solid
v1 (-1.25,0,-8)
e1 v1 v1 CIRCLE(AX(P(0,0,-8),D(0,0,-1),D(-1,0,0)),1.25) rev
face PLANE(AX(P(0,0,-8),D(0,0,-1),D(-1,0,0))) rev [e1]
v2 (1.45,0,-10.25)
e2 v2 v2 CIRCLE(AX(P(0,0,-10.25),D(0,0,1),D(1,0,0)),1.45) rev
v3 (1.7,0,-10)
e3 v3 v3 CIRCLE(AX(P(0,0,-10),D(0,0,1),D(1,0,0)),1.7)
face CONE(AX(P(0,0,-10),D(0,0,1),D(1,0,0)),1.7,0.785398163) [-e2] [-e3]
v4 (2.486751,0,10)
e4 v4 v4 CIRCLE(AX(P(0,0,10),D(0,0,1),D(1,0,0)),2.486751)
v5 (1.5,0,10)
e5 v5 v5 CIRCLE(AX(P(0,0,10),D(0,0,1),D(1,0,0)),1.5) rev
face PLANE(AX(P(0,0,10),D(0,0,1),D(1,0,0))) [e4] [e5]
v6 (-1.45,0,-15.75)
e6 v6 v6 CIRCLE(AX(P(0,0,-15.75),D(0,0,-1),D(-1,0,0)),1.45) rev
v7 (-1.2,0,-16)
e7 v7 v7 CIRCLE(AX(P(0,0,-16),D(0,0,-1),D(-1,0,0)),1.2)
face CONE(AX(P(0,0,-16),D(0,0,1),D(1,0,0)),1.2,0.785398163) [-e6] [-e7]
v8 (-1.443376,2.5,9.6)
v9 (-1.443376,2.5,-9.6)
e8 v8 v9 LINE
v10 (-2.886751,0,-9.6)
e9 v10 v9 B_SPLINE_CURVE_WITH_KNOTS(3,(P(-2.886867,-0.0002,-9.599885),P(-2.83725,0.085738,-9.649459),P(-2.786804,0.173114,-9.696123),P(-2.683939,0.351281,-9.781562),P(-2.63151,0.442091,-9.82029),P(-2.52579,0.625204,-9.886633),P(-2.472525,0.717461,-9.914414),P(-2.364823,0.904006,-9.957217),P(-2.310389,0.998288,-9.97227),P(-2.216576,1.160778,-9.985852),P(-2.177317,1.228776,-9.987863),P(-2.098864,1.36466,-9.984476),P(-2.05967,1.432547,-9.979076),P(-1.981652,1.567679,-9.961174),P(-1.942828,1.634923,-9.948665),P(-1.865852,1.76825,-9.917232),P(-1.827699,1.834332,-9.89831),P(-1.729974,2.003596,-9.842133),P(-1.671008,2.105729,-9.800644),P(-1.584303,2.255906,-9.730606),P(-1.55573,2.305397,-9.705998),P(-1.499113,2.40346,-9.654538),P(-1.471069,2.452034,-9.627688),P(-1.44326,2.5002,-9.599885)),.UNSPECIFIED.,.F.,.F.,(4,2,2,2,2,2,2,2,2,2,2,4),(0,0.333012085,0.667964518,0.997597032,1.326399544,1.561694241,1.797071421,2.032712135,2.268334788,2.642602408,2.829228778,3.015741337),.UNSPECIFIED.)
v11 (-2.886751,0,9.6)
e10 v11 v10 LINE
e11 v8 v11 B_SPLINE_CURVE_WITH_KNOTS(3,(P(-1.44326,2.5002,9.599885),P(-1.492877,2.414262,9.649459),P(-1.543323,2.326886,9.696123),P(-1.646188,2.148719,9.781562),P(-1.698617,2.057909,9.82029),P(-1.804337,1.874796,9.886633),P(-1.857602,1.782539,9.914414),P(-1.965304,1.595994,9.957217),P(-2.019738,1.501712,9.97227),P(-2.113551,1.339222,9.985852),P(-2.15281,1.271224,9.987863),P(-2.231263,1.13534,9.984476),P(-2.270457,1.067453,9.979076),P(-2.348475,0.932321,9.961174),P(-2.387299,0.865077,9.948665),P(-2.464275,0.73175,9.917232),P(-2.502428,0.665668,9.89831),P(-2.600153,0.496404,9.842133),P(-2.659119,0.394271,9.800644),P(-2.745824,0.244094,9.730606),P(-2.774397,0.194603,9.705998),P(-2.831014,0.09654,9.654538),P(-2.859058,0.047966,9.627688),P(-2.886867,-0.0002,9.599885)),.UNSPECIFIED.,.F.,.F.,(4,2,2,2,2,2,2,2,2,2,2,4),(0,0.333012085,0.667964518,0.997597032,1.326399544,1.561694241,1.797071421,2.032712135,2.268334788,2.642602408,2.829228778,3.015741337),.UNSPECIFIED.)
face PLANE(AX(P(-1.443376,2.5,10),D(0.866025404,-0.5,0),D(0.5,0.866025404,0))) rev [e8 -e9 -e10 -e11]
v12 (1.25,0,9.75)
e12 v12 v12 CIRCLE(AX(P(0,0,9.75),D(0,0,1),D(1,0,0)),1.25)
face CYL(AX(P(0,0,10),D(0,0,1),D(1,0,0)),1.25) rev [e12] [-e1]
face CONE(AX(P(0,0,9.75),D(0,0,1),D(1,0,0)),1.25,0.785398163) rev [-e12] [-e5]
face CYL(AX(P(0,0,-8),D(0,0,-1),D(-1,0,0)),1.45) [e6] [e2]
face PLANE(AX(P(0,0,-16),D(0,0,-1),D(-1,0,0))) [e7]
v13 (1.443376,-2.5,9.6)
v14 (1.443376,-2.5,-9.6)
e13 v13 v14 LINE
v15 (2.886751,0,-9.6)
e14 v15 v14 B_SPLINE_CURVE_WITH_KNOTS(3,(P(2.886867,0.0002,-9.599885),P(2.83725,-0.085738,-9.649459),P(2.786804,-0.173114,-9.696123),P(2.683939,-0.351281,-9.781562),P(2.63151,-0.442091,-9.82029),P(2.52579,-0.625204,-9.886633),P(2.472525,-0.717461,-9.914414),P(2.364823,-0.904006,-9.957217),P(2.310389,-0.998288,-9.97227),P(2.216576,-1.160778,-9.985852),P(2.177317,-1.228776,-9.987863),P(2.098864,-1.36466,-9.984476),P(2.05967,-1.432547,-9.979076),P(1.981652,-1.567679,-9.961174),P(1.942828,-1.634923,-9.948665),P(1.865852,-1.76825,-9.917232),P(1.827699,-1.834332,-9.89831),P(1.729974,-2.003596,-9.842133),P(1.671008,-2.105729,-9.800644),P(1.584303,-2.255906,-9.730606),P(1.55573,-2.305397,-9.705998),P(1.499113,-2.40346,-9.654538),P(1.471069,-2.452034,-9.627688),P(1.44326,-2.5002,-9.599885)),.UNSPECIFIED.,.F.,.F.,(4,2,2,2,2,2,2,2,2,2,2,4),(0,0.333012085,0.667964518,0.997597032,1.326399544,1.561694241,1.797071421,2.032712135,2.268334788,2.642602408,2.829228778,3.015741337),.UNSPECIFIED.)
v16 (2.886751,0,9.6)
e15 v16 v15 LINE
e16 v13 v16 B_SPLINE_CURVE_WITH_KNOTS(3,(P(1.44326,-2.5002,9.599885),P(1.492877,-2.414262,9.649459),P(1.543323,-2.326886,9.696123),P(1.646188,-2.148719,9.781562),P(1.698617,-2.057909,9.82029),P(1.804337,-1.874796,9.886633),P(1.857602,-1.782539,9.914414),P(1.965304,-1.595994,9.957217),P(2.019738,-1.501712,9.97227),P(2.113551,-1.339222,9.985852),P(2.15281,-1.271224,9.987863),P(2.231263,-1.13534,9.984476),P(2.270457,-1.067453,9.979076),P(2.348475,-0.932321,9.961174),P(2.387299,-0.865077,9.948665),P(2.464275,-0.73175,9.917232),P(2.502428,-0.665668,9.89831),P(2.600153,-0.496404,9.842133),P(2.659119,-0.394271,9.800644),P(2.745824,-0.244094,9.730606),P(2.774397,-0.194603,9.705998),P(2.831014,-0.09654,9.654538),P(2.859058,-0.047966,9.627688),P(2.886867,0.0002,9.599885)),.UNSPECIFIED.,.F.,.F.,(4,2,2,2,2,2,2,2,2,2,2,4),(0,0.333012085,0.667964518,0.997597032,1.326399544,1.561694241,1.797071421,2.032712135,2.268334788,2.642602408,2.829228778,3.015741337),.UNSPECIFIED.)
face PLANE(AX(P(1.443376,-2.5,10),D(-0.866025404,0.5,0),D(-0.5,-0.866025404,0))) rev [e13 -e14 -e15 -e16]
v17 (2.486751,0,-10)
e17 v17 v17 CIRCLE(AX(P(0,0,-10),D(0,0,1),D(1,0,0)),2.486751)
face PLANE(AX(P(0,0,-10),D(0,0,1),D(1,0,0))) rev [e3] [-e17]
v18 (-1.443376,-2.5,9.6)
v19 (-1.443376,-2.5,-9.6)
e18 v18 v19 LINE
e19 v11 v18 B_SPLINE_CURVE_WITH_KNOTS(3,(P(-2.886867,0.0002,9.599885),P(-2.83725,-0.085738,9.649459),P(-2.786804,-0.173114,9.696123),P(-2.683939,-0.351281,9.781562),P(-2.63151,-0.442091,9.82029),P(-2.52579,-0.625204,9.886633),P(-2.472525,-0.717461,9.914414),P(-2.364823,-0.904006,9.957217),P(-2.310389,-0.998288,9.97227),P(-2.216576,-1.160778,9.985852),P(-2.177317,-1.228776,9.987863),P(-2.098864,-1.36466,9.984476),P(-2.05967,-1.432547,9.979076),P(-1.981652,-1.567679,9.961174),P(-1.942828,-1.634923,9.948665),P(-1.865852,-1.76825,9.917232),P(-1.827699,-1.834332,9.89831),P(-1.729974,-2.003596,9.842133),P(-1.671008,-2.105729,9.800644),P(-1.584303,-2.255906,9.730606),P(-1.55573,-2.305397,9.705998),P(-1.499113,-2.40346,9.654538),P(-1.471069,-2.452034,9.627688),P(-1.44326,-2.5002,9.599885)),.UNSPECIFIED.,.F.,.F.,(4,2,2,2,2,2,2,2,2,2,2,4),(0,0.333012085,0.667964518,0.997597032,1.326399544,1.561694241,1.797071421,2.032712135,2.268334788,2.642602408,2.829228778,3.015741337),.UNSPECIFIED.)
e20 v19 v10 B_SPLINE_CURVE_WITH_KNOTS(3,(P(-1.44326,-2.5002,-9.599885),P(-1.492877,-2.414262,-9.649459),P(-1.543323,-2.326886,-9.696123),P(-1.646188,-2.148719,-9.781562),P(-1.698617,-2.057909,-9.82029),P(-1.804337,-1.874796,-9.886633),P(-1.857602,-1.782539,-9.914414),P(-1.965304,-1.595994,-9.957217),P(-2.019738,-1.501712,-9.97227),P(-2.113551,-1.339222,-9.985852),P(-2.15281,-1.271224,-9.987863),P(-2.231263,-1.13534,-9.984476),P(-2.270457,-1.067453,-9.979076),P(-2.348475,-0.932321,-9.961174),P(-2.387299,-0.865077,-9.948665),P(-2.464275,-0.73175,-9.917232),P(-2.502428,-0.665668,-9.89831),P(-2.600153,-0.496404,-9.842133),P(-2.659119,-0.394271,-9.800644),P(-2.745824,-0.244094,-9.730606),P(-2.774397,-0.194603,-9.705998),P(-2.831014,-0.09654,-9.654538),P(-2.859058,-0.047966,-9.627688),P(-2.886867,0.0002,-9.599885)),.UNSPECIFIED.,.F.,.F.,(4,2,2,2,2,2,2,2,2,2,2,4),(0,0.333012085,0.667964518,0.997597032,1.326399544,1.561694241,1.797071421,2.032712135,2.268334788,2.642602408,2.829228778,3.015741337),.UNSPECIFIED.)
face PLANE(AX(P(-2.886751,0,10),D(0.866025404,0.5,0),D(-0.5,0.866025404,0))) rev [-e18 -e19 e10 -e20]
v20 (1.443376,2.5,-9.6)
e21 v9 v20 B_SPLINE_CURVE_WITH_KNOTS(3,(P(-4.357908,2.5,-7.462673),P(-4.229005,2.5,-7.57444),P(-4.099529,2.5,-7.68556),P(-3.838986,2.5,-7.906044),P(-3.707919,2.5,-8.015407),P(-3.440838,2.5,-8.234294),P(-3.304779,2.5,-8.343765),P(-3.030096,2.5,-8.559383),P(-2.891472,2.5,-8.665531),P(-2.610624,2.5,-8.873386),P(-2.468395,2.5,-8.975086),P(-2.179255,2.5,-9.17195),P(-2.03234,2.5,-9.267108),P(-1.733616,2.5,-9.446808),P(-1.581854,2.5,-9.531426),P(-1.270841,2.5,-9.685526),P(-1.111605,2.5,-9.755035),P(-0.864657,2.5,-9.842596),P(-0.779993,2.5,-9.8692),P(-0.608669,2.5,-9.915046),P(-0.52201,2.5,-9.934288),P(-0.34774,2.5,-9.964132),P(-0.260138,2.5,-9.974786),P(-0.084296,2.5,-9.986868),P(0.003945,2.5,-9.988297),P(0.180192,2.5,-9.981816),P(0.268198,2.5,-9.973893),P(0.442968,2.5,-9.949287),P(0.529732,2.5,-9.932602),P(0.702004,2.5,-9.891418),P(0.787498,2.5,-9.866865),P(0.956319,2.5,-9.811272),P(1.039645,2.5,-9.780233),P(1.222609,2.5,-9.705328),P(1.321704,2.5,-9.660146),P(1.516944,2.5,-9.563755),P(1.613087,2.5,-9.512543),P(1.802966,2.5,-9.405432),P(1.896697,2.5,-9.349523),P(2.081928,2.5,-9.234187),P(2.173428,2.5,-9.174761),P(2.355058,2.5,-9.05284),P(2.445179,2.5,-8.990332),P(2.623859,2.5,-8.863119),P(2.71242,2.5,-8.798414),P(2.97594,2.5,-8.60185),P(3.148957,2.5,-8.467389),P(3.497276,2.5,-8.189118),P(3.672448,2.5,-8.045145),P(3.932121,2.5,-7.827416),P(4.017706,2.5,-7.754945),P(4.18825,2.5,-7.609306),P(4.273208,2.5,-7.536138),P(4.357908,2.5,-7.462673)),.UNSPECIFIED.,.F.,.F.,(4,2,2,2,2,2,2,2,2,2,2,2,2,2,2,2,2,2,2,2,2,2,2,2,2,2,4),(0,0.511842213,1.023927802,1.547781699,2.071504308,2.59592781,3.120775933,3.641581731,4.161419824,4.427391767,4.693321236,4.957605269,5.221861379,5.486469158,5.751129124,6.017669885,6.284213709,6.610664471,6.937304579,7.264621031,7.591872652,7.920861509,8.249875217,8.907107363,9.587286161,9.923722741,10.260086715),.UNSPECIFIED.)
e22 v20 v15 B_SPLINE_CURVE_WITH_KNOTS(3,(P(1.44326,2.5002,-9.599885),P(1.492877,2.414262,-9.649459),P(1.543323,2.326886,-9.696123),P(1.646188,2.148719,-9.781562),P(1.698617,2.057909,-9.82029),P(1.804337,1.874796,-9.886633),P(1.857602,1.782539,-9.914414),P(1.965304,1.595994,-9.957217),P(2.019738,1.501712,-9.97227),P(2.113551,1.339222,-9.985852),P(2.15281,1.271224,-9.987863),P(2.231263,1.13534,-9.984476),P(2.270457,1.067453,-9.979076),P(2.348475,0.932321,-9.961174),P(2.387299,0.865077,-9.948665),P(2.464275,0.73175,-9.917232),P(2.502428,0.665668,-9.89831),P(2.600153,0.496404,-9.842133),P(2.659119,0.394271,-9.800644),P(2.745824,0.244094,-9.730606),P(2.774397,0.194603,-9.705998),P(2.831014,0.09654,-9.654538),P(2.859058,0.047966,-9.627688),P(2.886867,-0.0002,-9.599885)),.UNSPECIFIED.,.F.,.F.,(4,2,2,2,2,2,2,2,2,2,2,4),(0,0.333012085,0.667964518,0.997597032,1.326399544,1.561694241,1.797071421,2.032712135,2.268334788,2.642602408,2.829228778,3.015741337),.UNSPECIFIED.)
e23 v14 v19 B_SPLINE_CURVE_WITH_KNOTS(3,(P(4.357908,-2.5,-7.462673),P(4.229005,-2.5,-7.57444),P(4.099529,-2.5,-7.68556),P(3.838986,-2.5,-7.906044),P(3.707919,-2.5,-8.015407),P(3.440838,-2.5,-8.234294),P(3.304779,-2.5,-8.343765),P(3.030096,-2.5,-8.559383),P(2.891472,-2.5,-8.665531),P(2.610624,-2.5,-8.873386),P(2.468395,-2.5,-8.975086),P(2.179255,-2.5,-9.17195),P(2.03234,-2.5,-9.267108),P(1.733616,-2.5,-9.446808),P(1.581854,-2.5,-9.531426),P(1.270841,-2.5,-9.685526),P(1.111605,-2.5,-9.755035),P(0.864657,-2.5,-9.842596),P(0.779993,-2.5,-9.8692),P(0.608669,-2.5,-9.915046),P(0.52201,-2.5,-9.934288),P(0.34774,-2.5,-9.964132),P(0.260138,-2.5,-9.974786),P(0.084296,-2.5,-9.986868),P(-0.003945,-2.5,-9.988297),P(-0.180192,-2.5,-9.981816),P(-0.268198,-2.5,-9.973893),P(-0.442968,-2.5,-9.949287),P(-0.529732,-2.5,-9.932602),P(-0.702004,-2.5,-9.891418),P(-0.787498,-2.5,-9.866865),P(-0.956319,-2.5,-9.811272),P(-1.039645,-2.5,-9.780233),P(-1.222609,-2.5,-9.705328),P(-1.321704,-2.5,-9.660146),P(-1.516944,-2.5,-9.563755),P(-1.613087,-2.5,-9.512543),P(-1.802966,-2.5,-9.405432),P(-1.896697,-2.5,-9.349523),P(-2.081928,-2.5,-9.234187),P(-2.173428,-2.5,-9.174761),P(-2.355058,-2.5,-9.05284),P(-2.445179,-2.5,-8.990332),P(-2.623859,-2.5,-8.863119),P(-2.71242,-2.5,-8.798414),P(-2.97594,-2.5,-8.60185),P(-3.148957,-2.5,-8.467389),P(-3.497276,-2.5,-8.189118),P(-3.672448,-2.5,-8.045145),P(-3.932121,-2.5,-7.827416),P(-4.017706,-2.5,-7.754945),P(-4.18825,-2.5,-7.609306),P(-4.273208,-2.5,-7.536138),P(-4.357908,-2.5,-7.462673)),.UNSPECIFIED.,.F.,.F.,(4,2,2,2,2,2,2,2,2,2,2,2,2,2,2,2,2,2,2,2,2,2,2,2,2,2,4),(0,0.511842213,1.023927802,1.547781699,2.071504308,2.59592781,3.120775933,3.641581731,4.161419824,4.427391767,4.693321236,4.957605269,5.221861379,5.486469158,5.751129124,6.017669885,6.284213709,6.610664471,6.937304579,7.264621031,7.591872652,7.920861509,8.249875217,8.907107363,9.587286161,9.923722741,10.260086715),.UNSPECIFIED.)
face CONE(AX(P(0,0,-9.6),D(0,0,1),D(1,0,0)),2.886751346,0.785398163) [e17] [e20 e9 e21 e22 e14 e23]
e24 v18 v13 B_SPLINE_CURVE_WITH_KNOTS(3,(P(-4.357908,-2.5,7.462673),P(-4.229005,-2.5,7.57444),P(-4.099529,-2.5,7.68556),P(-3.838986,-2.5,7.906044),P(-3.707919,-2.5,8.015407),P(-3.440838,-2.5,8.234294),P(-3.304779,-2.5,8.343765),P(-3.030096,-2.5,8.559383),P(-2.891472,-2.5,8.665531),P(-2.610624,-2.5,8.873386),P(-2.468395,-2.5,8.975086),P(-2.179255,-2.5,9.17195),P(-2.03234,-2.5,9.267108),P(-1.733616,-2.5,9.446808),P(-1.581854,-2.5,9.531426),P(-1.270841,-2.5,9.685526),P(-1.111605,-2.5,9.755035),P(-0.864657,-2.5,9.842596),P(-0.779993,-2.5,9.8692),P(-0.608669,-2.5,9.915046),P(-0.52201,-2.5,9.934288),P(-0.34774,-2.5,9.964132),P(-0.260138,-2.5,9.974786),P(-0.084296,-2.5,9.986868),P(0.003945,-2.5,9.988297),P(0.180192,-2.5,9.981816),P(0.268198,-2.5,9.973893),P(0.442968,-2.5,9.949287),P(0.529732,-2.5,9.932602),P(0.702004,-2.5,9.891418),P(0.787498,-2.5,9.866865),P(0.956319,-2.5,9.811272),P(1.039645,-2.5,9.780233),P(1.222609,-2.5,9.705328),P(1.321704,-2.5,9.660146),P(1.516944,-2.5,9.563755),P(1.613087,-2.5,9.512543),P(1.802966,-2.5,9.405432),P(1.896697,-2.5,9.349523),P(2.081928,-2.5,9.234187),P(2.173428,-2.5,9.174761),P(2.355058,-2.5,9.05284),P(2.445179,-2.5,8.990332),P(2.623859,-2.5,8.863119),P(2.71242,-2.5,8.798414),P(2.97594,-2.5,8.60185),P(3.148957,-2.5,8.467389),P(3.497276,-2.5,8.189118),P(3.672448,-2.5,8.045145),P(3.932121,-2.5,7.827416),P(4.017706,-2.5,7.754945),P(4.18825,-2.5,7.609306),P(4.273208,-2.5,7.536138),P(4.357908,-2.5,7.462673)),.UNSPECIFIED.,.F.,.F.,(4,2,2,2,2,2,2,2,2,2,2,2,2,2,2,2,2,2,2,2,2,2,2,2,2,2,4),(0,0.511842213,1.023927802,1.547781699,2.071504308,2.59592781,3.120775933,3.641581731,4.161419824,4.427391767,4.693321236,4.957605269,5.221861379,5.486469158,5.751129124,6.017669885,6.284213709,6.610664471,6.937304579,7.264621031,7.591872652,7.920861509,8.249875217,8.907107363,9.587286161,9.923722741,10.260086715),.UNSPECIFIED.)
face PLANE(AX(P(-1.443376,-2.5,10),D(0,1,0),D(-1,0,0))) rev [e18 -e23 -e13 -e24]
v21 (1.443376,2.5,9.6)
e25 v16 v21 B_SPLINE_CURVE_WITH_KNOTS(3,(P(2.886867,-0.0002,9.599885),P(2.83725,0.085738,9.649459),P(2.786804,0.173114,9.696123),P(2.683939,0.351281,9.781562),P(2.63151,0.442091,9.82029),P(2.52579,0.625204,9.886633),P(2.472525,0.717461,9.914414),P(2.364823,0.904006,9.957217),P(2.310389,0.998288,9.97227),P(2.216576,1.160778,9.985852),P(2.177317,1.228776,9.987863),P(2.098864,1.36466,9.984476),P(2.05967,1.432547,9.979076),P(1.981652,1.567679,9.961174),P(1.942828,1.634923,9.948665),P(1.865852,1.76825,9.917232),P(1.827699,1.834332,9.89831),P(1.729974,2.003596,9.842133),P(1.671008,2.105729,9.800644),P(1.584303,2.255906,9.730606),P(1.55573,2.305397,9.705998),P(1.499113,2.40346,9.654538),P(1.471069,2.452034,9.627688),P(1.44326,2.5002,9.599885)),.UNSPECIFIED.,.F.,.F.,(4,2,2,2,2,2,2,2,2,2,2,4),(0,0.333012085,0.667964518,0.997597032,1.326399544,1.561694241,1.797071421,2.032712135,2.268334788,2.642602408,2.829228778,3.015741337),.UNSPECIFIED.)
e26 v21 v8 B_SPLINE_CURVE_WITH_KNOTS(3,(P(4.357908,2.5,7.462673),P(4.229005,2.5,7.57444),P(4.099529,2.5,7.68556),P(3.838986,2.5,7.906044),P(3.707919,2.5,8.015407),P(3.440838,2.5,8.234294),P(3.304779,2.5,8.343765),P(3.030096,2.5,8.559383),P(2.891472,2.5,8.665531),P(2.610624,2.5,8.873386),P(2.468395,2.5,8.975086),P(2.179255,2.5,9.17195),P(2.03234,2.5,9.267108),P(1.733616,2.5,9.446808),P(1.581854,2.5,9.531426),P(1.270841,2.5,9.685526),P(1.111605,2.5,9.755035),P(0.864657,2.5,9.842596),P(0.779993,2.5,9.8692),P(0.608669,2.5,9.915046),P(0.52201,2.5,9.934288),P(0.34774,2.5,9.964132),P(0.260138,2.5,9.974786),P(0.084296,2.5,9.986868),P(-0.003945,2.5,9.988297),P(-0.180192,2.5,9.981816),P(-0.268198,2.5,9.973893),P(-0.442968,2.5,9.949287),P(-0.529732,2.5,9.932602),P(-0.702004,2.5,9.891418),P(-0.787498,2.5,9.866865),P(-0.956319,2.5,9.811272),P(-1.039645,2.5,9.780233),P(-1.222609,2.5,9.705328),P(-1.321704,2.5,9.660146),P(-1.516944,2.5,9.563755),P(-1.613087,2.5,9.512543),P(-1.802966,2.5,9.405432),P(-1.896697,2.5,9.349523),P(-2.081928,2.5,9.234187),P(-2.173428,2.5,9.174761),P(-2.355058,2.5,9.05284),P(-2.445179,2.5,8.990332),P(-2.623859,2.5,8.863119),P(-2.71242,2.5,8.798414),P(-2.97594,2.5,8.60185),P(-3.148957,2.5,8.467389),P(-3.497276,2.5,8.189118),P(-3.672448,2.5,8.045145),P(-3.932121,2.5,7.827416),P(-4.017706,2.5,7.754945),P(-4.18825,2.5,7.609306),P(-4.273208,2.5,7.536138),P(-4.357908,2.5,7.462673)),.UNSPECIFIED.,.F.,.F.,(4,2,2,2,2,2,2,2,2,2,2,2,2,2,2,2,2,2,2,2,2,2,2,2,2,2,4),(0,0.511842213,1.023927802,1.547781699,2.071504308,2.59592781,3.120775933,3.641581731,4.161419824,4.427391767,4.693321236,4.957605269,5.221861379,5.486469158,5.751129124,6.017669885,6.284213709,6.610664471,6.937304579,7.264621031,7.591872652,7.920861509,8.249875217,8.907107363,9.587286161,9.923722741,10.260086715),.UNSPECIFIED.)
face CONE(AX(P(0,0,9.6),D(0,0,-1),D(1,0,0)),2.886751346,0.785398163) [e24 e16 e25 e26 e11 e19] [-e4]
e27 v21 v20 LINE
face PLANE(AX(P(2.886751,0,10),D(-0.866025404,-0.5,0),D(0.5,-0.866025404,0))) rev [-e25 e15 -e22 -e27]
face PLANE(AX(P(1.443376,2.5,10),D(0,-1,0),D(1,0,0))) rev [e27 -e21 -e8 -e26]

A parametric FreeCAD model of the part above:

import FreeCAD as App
import Part
import Sketcher
from FreeCAD import Vector
Q = App.Units.Quantity


def edges_at(feature, points):
    """Names of the edges that pass closest to the given points."""
    edges = feature.Shape.Edges
    near = lambda p: min(range(len(edges)), key=lambda i: edges[i].distToShape(Part.Vertex(*p))[0])
    return sorted({f"Edge{near(p) + 1}" for p in points})


def add_polygon(sketch, points):
    """Adds a closed chain of lines whose ends are joined by coincident constraints."""
    first, n = sketch.GeometryCount, len(points)
    for a, b in zip(points, points[1:] + points[:1]):
        sketch.addGeometry(Part.LineSegment(App.Vector(*a, 0), App.Vector(*b, 0)), False)
    for i in range(n):
        sketch.addConstraint(Sketcher.Constraint("Coincident", first + i, 2, first + (i + 1) % n, 1))

doc = App.newDocument("Part")
params = doc.addObject("Spreadsheet::Sheet", "Params")
for row, (alias, value) in enumerate([
    ("pad1_length", "20 mm"),
    ("sketch2_diameter", "2.5 mm"),
    ("hole_diameter", "2.5 mm"),
    ("sketch3_width", "0.4 mm"),
    ("groove_angle", "360 deg"),
    ("sketch4_diameter", "2.9 mm"),
    ("pad2_length", "6 mm"),
    ("pad2_length2", "2 mm"),
    ("chamfer_size", "0.25 mm"),
], start=1):
    params.set(f"A{row}", alias)
    params.set(f"B{row}", "=" + value)
    params.setAlias(f"B{row}", alias)

body = doc.addObject("PartDesign::Body", "Body")

# Sketch on XY plane
sketch1 = body.newObject("Sketcher::SketchObject", "Sketch")
sketch1.AttachmentSupport = (doc.getObject("XY_Plane"), [""])
sketch1.MapMode = "FlatFace"
add_polygon(sketch1, [(2.9, 0), (1.4, 2.5), (-1.4, 2.5), (-2.9, 0), (-1.4, -2.5), (1.4, -2.5)])  # lines 0-5
sketch1.addConstraint(Sketcher.Constraint("Horizontal", 1))
sketch1.addConstraint(Sketcher.Constraint("Horizontal", 4))
sketch1.addConstraint(Sketcher.Constraint("Symmetric", 0, 2, 3, 2, -1, 1))
sketch1.addConstraint(Sketcher.Constraint("Symmetric", 2, 2, 5, 2, -1, 1))
sketch1.addConstraint(Sketcher.Constraint("PointOnObject", 2, 2, -1))
sketch1.addConstraint(Sketcher.Constraint("Parallel", 2, 5))
sketch1.addConstraint(Sketcher.Constraint("Vertical", 1, 2, 3, 2))
sketch1.addConstraint(Sketcher.Constraint("Angle", 0, Q("120 deg")))
sketch1.addConstraint(Sketcher.Constraint("DistanceY", 3, 2, 1, 2, 5.0))
sketch1.addConstraint(Sketcher.Constraint("DistanceX", 1, 2, 1, 1, 2.886751))
pad1 = body.newObject("PartDesign::Pad", "Pad")
pad1.Profile = sketch1
pad1.setExpression("Length", "Params.pad1_length")
pad1.Midplane = True

# Sketch on XY plane
sketch2 = body.newObject("Sketcher::SketchObject", "Sketch001")
sketch2.AttachmentSupport = (doc.getObject("XY_Plane"), [""])
sketch2.MapMode = "FlatFace"
sketch2.AttachmentOffset = App.Placement(Vector(0, 0, 10), App.Rotation())
sketch2.addGeometry(Part.Circle(Vector(0, 0, 0), Vector(0, 0, 1), 1.2), False)
sketch2.addConstraint(Sketcher.Constraint("Coincident", 0, 3, -1, 1))
sketch2.addConstraint(Sketcher.Constraint("Diameter", 0, 2.5))
sketch2.setExpression("Constraints[1]", "Params.sketch2_diameter")
doc.recompute()
hole = body.newObject("PartDesign::Hole", "Hole")
hole.Profile = sketch2
hole.ThreadType = "None"
hole.setExpression("Diameter", "Params.hole_diameter")
hole.DepthType = "ThroughAll"

# Sketch on XZ plane
sketch3 = body.newObject("Sketcher::SketchObject", "Sketch002")
sketch3.AttachmentSupport = (doc.getObject("XZ_Plane"), [""])
sketch3.MapMode = "FlatFace"
add_polygon(sketch3, [(-2.89, -10), (-2.89, -9.6), (-2.49, -10)])  # lines 0-2
sketch3.addConstraint(Sketcher.Constraint("Vertical", 0))
sketch3.addConstraint(Sketcher.Constraint("Horizontal", 2))
sketch3.addConstraint(Sketcher.Constraint("Equal", 2, 0))
sketch3.addConstraint(Sketcher.Constraint("DistanceX", 2, 2, 2, 1, 0.4))
sketch3.addConstraint(Sketcher.Constraint("DistanceY", 1, 2, -1, 1, 10.0))
sketch3.addConstraint(Sketcher.Constraint("DistanceX", 0, 2, -1, 1, 2.886751))
sketch3.setExpression("Constraints[6]", "Params.sketch3_width")
groove = body.newObject("PartDesign::Groove", "Groove")
groove.Profile = sketch3
groove.ReferenceAxis = (sketch3, ["V_Axis"])
groove.setExpression("Angle", "Params.groove_angle")
doc.recompute()

mirrored = body.newObject("PartDesign::Mirrored", "Mirrored")
mirrored.Originals = [groove]
mirrored.MirrorPlane = (doc.getObject("XY_Plane"), [""])
body.Tip = mirrored

# Sketch on XY plane
sketch4 = body.newObject("Sketcher::SketchObject", "Sketch003")
sketch4.AttachmentSupport = (doc.getObject("XY_Plane"), [""])
sketch4.MapMode = "FlatFace"
sketch4.AttachmentOffset = App.Placement(Vector(0, 0, -10), App.Rotation())
sketch4.addGeometry(Part.Circle(Vector(0, 0, 0), Vector(0, 0, 1), 1.4), False)
sketch4.addConstraint(Sketcher.Constraint("Coincident", 0, 3, -1, 1))
sketch4.addConstraint(Sketcher.Constraint("Diameter", 0, 2.9))
sketch4.setExpression("Constraints[1]", "Params.sketch4_diameter")
pad2 = body.newObject("PartDesign::Pad", "Pad001")
pad2.Profile = sketch4
pad2.Type = "TwoLengths"
pad2.setExpression("Length", "Params.pad2_length")
pad2.setExpression("Length2", "Params.pad2_length2")
pad2.Reversed = True
doc.recompute()

chamfer = body.newObject("PartDesign::Chamfer", "Chamfer")
chamfer.Base = (pad2, edges_at(pad2, [(1.25, 0, 10), (1.45, 0, -10), (1.45, 0, -16)]))
chamfer.setExpression("Size", "Params.chamfer_size")

doc.recompute()
